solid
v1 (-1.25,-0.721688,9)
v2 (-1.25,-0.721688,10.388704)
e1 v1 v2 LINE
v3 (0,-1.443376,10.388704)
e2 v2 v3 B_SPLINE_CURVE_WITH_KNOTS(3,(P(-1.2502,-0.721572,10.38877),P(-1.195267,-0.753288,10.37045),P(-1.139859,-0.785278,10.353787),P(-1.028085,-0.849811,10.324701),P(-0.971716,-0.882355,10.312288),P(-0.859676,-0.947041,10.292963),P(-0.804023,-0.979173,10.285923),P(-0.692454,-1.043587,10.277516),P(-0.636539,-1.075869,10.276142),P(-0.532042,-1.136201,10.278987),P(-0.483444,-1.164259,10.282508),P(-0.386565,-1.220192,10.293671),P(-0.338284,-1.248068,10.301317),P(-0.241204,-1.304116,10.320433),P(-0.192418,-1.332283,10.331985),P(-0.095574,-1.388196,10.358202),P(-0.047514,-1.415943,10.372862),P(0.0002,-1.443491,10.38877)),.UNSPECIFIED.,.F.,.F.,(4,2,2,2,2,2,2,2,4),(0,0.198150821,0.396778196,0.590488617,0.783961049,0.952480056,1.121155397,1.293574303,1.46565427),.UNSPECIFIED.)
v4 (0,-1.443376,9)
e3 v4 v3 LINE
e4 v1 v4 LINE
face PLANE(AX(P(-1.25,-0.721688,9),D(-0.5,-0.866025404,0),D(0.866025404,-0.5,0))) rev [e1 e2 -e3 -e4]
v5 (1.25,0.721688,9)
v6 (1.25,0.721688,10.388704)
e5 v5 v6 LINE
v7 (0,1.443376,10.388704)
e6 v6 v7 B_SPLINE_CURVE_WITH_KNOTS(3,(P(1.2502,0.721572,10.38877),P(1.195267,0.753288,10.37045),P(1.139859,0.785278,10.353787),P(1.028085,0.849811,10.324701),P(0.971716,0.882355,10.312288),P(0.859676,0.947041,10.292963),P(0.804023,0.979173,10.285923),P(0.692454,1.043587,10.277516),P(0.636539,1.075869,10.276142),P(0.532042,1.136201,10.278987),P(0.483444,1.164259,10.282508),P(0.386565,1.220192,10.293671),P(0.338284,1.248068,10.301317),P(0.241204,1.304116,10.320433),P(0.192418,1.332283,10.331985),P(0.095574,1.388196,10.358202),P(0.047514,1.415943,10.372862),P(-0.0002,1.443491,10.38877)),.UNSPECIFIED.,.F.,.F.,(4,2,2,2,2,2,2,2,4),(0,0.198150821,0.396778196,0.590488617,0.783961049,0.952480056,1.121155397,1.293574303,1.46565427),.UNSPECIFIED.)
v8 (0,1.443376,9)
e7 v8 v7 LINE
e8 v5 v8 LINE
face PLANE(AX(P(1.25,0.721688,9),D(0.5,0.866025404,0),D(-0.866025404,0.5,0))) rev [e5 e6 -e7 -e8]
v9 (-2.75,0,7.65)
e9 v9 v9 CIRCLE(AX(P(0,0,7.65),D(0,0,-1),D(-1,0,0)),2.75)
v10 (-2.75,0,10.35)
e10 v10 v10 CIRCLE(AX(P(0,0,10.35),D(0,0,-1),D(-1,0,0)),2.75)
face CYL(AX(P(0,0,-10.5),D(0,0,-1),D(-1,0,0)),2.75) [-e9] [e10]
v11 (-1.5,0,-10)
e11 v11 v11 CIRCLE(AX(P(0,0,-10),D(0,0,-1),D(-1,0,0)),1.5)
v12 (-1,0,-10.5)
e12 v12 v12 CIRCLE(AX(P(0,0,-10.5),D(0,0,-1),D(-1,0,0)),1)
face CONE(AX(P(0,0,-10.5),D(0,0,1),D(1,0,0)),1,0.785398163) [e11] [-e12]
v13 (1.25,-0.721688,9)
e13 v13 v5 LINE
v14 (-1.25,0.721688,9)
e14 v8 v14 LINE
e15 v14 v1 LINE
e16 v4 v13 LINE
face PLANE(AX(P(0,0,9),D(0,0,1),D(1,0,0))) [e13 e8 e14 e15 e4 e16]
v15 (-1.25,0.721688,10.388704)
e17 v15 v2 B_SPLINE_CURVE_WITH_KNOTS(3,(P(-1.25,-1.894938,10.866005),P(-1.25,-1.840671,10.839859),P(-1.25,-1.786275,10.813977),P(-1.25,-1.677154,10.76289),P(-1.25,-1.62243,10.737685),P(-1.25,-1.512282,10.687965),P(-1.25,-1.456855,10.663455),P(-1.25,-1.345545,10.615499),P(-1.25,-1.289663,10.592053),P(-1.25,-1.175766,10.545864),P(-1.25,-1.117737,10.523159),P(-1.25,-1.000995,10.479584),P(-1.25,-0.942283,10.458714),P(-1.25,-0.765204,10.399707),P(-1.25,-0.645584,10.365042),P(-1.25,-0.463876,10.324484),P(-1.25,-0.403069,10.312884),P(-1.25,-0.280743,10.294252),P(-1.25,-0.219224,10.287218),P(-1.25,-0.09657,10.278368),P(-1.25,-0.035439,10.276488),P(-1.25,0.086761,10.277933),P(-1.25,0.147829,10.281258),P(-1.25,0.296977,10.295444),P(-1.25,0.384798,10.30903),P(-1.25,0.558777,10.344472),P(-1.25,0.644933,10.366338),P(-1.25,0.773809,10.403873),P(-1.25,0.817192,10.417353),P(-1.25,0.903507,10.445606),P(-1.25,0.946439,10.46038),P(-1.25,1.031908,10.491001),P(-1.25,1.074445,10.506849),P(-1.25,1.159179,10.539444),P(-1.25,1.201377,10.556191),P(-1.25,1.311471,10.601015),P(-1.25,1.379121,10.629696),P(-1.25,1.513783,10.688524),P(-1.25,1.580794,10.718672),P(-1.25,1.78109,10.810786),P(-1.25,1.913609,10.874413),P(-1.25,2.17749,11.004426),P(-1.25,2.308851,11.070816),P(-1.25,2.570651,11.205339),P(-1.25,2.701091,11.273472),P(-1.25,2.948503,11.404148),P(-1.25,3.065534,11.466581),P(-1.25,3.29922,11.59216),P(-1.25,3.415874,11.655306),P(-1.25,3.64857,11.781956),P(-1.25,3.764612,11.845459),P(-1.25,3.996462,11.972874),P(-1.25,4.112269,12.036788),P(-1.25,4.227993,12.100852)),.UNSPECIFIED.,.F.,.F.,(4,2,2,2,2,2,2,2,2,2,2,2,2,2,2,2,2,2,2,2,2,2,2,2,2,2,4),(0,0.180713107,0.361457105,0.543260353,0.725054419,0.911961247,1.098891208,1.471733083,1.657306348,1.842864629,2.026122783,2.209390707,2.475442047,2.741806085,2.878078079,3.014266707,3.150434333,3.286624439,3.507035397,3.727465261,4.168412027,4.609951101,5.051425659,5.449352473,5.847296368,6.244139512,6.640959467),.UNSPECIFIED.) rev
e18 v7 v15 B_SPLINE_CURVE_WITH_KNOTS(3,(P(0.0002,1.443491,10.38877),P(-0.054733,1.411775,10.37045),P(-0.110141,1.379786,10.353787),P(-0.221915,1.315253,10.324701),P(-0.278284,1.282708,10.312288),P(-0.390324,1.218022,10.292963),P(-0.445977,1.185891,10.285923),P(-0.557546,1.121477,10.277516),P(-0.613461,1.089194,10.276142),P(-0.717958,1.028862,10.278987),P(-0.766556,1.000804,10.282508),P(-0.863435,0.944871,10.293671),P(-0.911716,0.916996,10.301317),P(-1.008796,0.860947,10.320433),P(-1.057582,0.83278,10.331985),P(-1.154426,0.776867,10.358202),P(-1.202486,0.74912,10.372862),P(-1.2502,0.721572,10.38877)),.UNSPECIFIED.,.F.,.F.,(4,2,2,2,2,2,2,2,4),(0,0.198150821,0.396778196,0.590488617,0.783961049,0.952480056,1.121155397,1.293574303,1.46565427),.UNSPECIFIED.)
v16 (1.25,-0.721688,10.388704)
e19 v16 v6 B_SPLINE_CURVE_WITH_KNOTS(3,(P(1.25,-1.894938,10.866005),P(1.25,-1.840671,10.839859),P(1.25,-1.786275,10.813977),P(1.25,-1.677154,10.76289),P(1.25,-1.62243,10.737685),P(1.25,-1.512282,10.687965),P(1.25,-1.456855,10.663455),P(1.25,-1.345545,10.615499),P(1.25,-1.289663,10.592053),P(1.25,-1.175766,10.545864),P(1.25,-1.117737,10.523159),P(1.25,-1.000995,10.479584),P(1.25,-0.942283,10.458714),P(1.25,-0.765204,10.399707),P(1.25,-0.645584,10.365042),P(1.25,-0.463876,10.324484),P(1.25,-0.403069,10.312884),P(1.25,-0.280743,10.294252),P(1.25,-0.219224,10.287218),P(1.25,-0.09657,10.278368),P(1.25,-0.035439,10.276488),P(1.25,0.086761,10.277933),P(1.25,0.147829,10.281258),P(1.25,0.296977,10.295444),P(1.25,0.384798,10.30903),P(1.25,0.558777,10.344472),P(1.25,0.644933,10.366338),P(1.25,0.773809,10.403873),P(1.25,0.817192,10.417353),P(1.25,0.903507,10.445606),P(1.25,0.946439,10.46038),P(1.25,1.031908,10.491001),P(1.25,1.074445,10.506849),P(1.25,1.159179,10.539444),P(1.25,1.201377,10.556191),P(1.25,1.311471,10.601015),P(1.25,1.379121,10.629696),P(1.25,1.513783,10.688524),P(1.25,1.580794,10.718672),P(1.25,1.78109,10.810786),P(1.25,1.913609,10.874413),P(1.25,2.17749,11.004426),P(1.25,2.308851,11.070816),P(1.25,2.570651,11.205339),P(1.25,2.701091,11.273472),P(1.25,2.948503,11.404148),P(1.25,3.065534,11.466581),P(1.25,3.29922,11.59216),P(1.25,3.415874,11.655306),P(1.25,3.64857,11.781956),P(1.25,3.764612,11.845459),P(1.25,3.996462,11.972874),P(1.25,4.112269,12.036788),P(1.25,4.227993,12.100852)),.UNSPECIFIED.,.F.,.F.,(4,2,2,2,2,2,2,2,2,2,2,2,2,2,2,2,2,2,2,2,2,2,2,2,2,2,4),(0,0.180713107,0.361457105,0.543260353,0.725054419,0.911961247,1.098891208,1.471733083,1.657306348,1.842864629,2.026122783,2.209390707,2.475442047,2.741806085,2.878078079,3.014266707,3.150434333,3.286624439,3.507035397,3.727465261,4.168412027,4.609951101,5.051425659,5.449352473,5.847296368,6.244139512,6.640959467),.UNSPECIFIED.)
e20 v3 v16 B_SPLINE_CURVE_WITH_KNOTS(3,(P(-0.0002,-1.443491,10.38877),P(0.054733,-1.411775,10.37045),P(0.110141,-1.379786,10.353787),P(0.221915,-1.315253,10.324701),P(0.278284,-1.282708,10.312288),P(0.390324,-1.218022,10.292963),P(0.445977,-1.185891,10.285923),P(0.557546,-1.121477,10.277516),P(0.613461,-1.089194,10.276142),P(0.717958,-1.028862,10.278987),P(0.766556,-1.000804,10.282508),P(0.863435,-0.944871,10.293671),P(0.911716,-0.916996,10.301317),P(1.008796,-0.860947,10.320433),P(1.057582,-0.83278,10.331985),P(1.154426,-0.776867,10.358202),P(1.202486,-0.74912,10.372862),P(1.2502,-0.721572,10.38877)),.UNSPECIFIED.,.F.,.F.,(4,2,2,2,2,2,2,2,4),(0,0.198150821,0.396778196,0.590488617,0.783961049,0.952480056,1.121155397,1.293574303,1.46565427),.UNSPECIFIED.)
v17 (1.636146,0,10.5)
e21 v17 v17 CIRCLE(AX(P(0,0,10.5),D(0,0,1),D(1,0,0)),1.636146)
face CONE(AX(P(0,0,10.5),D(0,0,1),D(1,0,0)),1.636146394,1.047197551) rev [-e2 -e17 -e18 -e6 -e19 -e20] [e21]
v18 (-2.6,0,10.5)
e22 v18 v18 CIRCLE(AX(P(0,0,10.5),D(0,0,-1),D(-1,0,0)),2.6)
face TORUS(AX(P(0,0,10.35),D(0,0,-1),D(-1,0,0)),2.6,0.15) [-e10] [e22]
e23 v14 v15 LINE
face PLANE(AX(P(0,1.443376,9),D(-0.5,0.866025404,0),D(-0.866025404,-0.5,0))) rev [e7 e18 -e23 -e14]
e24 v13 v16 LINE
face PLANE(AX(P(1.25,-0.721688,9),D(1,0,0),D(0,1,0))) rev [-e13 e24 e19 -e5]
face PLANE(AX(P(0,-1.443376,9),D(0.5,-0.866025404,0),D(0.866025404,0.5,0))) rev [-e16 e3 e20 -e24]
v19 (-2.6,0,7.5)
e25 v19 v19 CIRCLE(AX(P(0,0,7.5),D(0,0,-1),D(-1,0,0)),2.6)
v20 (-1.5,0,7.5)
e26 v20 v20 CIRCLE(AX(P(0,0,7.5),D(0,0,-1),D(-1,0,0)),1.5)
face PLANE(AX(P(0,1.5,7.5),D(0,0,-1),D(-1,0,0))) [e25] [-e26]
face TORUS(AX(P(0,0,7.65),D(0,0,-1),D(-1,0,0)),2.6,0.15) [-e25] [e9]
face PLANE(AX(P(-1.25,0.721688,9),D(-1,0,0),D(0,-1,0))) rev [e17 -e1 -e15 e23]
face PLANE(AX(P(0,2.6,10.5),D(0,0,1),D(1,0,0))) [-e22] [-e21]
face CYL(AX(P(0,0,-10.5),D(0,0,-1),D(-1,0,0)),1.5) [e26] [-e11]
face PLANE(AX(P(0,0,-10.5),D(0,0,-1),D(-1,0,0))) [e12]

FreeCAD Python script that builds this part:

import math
import FreeCAD as App
import Part
import Sketcher

V = App.Vector
Q = App.Units.Quantity

doc = App.newDocument("Part")
params = doc.addObject("Spreadsheet::Sheet", "Params")
for row, (alias, value) in enumerate([
    ("sketch1_width", "1 mm"),
    ("sketch1_height", "21 mm"),
    ("sketch1_radius", "0.15 mm"),
    ("sketch1_width2", "1.1 mm"),
    ("sketch1_width3", "2.6 mm"),
    ("revolution_angle", "360 deg"),
    ("pocket1_length", "1.5 mm"),
    ("groove_angle", "360 deg"),
], start=1):
    params.set(f"A{row}", alias)
    params.set(f"B{row}", "=" + value)
    params.setAlias(f"B{row}", alias)

body = doc.addObject("PartDesign::Body", "Body")

# Sketch on YZ plane
sketch1 = doc.addObject("Sketcher::SketchObject", "Sketch")
body.addObject(sketch1)
sketch1.AttachmentSupport = (doc.YZ_Plane, [""])
sketch1.MapMode = "FlatFace"
sketch1.addGeometry([
    Part.LineSegment(V(0, -10.5, 0), V(1, -10.5, 0)),  # 0
    Part.LineSegment(V(1, -10.5, 0), V(1.5, -10, 0)),  # 1
    Part.LineSegment(V(1.5, -10, 0), V(1.5, 7.5, 0)),  # 2
    Part.LineSegment(V(1.5, 7.5, 0), V(2.6, 7.5, 0)),  # 3
    Part.ArcOfCircle(Part.Circle(V(2.6, 7.65, 0), V(0, 0, 1), 0.15), math.radians(-90), math.radians(0)),  # 4
    Part.LineSegment(V(2.75, 7.65, 0), V(2.75, 10.35, 0)),  # 5
    Part.ArcOfCircle(Part.Circle(V(2.6, 10.35, 0), V(0, 0, 1), 0.15), math.radians(0), math.radians(90)),  # 6
    Part.LineSegment(V(2.6, 10.5, 0), V(0, 10.5, 0)),  # 7
    Part.LineSegment(V(0, 10.5, 0), V(0, -10.5, 0)),  # 8
], False)
sketch1.addConstraint([
    Sketcher.Constraint("Coincident", 0, 2, 1, 1),
    Sketcher.Constraint("Coincident", 1, 2, 2, 1),
    Sketcher.Constraint("Coincident", 2, 2, 3, 1),
    Sketcher.Constraint("Tangent", 3, 2, 4, 1),
    Sketcher.Constraint("Tangent", 4, 2, 5, 1),
    Sketcher.Constraint("Tangent", 5, 2, 6, 1),
    Sketcher.Constraint("Tangent", 6, 2, 7, 1),
    Sketcher.Constraint("Coincident", 7, 2, 8, 1),
    Sketcher.Constraint("Coincident", 8, 2, 0, 1),
    Sketcher.Constraint("Horizontal", 0),
    Sketcher.Constraint("Vertical", 2),
    Sketcher.Constraint("Horizontal", 3),
    Sketcher.Constraint("Vertical", 5),
    Sketcher.Constraint("Horizontal", 7),
    Sketcher.Constraint("Vertical", 8),
    Sketcher.Constraint("Equal", 4, 6),
    Sketcher.Constraint("Symmetric", 7, 2, 8, 2, -1, 1),
    Sketcher.Constraint("DistanceX", 0, 1, 0, 2, 1.0),
    Sketcher.Constraint("DistanceY", 8, 2, 8, 1, 21.0),
    Sketcher.Constraint("Angle", 1, Q("45 deg")),
    Sketcher.Constraint("Radius", 4, 0.15),
    Sketcher.Constraint("DistanceX", 3, 1, 3, 2, 1.1),
    Sketcher.Constraint("DistanceX", 7, 2, 7, 1, 2.6),
    Sketcher.Constraint("DistanceY", 2, 1, 2, 2, 17.5),
])
sketch1.setExpression("Constraints[17]", "Params.sketch1_width")
sketch1.setExpression("Constraints[18]", "Params.sketch1_height")
sketch1.setExpression("Constraints[20]", "Params.sketch1_radius")
sketch1.setExpression("Constraints[21]", "Params.sketch1_width2")
sketch1.setExpression("Constraints[22]", "Params.sketch1_width3")
revolution = doc.addObject("PartDesign::Revolution", "Revolution")
body.addObject(revolution)
revolution.Profile = sketch1
revolution.ReferenceAxis = (sketch1, ["V_Axis"])
revolution.setExpression("Angle", "Params.revolution_angle")

# Sketch on XY plane
sketch2 = doc.addObject("Sketcher::SketchObject", "Sketch001")
body.addObject(sketch2)
sketch2.AttachmentSupport = (doc.XY_Plane, [""])
sketch2.MapMode = "FlatFace"
sketch2.AttachmentOffset = App.Placement(V(0, 0, 10.5), App.Rotation())
sketch2.addGeometry([
    Part.LineSegment(V(-1.25, 0.721688, 0), V(-1.25, -0.721688, 0)),  # 0
    Part.LineSegment(V(-1.25, -0.721688, 0), V(0, -1.443376, 0)),  # 1
    Part.LineSegment(V(0, -1.443376, 0), V(1.25, -0.721688, 0)),  # 2
    Part.LineSegment(V(1.25, -0.721688, 0), V(1.25, 0.721688, 0)),  # 3
    Part.LineSegment(V(1.25, 0.721688, 0), V(0, 1.443376, 0)),  # 4
    Part.LineSegment(V(0, 1.443376, 0), V(-1.25, 0.721688, 0)),  # 5
], False)
sketch2.addConstraint([
    Sketcher.Constraint("Coincident", 0, 2, 1, 1),
    Sketcher.Constraint("Coincident", 1, 2, 2, 1),
    Sketcher.Constraint("Coincident", 2, 2, 3, 1),
    Sketcher.Constraint("Coincident", 3, 2, 4, 1),
    Sketcher.Constraint("Coincident", 4, 2, 5, 1),
    Sketcher.Constraint("Coincident", 5, 2, 0, 1),
    Sketcher.Constraint("Vertical", 0),
    Sketcher.Constraint("Vertical", 3),
    Sketcher.Constraint("Symmetric", 0, 2, 3, 2, -1, 1),
    Sketcher.Constraint("Symmetric", 1, 2, 4, 2, -1, 1),
    Sketcher.Constraint("PointOnObject", 1, 2, -2),
    Sketcher.Constraint("Parallel", 2, 5),
    Sketcher.Constraint("Horizontal", 0, 2, 2, 2),
    Sketcher.Constraint("Angle", 1, Q("-30 deg")),
    Sketcher.Constraint("DistanceX", 0, 2, 2, 2, 2.5),
    Sketcher.Constraint("DistanceY", 0, 2, 0, 1, 1.443376),
])
pocket1 = doc.addObject("PartDesign::Pocket", "Pocket")
body.addObject(pocket1)
pocket1.Profile = sketch2
pocket1.setExpression("Length", "Params.pocket1_length")

# Sketch on YZ plane
sketch3 = doc.addObject("Sketcher::SketchObject", "Sketch002")
body.addObject(sketch3)
sketch3.AttachmentSupport = (doc.YZ_Plane, [""])
sketch3.MapMode = "FlatFace"
sketch3.addGeometry([
    Part.LineSegment(V(0, 10.5, 0), V(-1.636146, 10.5, 0)),
    Part.LineSegment(V(-1.636146, 10.5, 0), V(0, 9.55537, 0)),
    Part.LineSegment(V(0, 9.55537, 0), V(0, 10.5, 0)),
], False)
sketch3.addConstraint([
    Sketcher.Constraint("Coincident", 0, 2, 1, 1),
    Sketcher.Constraint("Coincident", 1, 2, 2, 1),
    Sketcher.Constraint("Coincident", 2, 2, 0, 1),
    Sketcher.Constraint("Horizontal", 0),
    Sketcher.Constraint("Vertical", 2),
    Sketcher.Constraint("PointOnObject", 1, 2, -2),
    Sketcher.Constraint("Angle", 1, Q("-30 deg")),
    Sketcher.Constraint("DistanceY", -1, 1, 0, 2, 10.5),
    Sketcher.Constraint("DistanceY", 2, 1, 2, 2, 0.94463),
])
groove = doc.addObject("PartDesign::Groove", "Groove")
body.addObject(groove)
groove.Profile = sketch3
groove.ReferenceAxis = (sketch3, ["V_Axis"])
groove.setExpression("Angle", "Params.groove_angle")

doc.recompute()
